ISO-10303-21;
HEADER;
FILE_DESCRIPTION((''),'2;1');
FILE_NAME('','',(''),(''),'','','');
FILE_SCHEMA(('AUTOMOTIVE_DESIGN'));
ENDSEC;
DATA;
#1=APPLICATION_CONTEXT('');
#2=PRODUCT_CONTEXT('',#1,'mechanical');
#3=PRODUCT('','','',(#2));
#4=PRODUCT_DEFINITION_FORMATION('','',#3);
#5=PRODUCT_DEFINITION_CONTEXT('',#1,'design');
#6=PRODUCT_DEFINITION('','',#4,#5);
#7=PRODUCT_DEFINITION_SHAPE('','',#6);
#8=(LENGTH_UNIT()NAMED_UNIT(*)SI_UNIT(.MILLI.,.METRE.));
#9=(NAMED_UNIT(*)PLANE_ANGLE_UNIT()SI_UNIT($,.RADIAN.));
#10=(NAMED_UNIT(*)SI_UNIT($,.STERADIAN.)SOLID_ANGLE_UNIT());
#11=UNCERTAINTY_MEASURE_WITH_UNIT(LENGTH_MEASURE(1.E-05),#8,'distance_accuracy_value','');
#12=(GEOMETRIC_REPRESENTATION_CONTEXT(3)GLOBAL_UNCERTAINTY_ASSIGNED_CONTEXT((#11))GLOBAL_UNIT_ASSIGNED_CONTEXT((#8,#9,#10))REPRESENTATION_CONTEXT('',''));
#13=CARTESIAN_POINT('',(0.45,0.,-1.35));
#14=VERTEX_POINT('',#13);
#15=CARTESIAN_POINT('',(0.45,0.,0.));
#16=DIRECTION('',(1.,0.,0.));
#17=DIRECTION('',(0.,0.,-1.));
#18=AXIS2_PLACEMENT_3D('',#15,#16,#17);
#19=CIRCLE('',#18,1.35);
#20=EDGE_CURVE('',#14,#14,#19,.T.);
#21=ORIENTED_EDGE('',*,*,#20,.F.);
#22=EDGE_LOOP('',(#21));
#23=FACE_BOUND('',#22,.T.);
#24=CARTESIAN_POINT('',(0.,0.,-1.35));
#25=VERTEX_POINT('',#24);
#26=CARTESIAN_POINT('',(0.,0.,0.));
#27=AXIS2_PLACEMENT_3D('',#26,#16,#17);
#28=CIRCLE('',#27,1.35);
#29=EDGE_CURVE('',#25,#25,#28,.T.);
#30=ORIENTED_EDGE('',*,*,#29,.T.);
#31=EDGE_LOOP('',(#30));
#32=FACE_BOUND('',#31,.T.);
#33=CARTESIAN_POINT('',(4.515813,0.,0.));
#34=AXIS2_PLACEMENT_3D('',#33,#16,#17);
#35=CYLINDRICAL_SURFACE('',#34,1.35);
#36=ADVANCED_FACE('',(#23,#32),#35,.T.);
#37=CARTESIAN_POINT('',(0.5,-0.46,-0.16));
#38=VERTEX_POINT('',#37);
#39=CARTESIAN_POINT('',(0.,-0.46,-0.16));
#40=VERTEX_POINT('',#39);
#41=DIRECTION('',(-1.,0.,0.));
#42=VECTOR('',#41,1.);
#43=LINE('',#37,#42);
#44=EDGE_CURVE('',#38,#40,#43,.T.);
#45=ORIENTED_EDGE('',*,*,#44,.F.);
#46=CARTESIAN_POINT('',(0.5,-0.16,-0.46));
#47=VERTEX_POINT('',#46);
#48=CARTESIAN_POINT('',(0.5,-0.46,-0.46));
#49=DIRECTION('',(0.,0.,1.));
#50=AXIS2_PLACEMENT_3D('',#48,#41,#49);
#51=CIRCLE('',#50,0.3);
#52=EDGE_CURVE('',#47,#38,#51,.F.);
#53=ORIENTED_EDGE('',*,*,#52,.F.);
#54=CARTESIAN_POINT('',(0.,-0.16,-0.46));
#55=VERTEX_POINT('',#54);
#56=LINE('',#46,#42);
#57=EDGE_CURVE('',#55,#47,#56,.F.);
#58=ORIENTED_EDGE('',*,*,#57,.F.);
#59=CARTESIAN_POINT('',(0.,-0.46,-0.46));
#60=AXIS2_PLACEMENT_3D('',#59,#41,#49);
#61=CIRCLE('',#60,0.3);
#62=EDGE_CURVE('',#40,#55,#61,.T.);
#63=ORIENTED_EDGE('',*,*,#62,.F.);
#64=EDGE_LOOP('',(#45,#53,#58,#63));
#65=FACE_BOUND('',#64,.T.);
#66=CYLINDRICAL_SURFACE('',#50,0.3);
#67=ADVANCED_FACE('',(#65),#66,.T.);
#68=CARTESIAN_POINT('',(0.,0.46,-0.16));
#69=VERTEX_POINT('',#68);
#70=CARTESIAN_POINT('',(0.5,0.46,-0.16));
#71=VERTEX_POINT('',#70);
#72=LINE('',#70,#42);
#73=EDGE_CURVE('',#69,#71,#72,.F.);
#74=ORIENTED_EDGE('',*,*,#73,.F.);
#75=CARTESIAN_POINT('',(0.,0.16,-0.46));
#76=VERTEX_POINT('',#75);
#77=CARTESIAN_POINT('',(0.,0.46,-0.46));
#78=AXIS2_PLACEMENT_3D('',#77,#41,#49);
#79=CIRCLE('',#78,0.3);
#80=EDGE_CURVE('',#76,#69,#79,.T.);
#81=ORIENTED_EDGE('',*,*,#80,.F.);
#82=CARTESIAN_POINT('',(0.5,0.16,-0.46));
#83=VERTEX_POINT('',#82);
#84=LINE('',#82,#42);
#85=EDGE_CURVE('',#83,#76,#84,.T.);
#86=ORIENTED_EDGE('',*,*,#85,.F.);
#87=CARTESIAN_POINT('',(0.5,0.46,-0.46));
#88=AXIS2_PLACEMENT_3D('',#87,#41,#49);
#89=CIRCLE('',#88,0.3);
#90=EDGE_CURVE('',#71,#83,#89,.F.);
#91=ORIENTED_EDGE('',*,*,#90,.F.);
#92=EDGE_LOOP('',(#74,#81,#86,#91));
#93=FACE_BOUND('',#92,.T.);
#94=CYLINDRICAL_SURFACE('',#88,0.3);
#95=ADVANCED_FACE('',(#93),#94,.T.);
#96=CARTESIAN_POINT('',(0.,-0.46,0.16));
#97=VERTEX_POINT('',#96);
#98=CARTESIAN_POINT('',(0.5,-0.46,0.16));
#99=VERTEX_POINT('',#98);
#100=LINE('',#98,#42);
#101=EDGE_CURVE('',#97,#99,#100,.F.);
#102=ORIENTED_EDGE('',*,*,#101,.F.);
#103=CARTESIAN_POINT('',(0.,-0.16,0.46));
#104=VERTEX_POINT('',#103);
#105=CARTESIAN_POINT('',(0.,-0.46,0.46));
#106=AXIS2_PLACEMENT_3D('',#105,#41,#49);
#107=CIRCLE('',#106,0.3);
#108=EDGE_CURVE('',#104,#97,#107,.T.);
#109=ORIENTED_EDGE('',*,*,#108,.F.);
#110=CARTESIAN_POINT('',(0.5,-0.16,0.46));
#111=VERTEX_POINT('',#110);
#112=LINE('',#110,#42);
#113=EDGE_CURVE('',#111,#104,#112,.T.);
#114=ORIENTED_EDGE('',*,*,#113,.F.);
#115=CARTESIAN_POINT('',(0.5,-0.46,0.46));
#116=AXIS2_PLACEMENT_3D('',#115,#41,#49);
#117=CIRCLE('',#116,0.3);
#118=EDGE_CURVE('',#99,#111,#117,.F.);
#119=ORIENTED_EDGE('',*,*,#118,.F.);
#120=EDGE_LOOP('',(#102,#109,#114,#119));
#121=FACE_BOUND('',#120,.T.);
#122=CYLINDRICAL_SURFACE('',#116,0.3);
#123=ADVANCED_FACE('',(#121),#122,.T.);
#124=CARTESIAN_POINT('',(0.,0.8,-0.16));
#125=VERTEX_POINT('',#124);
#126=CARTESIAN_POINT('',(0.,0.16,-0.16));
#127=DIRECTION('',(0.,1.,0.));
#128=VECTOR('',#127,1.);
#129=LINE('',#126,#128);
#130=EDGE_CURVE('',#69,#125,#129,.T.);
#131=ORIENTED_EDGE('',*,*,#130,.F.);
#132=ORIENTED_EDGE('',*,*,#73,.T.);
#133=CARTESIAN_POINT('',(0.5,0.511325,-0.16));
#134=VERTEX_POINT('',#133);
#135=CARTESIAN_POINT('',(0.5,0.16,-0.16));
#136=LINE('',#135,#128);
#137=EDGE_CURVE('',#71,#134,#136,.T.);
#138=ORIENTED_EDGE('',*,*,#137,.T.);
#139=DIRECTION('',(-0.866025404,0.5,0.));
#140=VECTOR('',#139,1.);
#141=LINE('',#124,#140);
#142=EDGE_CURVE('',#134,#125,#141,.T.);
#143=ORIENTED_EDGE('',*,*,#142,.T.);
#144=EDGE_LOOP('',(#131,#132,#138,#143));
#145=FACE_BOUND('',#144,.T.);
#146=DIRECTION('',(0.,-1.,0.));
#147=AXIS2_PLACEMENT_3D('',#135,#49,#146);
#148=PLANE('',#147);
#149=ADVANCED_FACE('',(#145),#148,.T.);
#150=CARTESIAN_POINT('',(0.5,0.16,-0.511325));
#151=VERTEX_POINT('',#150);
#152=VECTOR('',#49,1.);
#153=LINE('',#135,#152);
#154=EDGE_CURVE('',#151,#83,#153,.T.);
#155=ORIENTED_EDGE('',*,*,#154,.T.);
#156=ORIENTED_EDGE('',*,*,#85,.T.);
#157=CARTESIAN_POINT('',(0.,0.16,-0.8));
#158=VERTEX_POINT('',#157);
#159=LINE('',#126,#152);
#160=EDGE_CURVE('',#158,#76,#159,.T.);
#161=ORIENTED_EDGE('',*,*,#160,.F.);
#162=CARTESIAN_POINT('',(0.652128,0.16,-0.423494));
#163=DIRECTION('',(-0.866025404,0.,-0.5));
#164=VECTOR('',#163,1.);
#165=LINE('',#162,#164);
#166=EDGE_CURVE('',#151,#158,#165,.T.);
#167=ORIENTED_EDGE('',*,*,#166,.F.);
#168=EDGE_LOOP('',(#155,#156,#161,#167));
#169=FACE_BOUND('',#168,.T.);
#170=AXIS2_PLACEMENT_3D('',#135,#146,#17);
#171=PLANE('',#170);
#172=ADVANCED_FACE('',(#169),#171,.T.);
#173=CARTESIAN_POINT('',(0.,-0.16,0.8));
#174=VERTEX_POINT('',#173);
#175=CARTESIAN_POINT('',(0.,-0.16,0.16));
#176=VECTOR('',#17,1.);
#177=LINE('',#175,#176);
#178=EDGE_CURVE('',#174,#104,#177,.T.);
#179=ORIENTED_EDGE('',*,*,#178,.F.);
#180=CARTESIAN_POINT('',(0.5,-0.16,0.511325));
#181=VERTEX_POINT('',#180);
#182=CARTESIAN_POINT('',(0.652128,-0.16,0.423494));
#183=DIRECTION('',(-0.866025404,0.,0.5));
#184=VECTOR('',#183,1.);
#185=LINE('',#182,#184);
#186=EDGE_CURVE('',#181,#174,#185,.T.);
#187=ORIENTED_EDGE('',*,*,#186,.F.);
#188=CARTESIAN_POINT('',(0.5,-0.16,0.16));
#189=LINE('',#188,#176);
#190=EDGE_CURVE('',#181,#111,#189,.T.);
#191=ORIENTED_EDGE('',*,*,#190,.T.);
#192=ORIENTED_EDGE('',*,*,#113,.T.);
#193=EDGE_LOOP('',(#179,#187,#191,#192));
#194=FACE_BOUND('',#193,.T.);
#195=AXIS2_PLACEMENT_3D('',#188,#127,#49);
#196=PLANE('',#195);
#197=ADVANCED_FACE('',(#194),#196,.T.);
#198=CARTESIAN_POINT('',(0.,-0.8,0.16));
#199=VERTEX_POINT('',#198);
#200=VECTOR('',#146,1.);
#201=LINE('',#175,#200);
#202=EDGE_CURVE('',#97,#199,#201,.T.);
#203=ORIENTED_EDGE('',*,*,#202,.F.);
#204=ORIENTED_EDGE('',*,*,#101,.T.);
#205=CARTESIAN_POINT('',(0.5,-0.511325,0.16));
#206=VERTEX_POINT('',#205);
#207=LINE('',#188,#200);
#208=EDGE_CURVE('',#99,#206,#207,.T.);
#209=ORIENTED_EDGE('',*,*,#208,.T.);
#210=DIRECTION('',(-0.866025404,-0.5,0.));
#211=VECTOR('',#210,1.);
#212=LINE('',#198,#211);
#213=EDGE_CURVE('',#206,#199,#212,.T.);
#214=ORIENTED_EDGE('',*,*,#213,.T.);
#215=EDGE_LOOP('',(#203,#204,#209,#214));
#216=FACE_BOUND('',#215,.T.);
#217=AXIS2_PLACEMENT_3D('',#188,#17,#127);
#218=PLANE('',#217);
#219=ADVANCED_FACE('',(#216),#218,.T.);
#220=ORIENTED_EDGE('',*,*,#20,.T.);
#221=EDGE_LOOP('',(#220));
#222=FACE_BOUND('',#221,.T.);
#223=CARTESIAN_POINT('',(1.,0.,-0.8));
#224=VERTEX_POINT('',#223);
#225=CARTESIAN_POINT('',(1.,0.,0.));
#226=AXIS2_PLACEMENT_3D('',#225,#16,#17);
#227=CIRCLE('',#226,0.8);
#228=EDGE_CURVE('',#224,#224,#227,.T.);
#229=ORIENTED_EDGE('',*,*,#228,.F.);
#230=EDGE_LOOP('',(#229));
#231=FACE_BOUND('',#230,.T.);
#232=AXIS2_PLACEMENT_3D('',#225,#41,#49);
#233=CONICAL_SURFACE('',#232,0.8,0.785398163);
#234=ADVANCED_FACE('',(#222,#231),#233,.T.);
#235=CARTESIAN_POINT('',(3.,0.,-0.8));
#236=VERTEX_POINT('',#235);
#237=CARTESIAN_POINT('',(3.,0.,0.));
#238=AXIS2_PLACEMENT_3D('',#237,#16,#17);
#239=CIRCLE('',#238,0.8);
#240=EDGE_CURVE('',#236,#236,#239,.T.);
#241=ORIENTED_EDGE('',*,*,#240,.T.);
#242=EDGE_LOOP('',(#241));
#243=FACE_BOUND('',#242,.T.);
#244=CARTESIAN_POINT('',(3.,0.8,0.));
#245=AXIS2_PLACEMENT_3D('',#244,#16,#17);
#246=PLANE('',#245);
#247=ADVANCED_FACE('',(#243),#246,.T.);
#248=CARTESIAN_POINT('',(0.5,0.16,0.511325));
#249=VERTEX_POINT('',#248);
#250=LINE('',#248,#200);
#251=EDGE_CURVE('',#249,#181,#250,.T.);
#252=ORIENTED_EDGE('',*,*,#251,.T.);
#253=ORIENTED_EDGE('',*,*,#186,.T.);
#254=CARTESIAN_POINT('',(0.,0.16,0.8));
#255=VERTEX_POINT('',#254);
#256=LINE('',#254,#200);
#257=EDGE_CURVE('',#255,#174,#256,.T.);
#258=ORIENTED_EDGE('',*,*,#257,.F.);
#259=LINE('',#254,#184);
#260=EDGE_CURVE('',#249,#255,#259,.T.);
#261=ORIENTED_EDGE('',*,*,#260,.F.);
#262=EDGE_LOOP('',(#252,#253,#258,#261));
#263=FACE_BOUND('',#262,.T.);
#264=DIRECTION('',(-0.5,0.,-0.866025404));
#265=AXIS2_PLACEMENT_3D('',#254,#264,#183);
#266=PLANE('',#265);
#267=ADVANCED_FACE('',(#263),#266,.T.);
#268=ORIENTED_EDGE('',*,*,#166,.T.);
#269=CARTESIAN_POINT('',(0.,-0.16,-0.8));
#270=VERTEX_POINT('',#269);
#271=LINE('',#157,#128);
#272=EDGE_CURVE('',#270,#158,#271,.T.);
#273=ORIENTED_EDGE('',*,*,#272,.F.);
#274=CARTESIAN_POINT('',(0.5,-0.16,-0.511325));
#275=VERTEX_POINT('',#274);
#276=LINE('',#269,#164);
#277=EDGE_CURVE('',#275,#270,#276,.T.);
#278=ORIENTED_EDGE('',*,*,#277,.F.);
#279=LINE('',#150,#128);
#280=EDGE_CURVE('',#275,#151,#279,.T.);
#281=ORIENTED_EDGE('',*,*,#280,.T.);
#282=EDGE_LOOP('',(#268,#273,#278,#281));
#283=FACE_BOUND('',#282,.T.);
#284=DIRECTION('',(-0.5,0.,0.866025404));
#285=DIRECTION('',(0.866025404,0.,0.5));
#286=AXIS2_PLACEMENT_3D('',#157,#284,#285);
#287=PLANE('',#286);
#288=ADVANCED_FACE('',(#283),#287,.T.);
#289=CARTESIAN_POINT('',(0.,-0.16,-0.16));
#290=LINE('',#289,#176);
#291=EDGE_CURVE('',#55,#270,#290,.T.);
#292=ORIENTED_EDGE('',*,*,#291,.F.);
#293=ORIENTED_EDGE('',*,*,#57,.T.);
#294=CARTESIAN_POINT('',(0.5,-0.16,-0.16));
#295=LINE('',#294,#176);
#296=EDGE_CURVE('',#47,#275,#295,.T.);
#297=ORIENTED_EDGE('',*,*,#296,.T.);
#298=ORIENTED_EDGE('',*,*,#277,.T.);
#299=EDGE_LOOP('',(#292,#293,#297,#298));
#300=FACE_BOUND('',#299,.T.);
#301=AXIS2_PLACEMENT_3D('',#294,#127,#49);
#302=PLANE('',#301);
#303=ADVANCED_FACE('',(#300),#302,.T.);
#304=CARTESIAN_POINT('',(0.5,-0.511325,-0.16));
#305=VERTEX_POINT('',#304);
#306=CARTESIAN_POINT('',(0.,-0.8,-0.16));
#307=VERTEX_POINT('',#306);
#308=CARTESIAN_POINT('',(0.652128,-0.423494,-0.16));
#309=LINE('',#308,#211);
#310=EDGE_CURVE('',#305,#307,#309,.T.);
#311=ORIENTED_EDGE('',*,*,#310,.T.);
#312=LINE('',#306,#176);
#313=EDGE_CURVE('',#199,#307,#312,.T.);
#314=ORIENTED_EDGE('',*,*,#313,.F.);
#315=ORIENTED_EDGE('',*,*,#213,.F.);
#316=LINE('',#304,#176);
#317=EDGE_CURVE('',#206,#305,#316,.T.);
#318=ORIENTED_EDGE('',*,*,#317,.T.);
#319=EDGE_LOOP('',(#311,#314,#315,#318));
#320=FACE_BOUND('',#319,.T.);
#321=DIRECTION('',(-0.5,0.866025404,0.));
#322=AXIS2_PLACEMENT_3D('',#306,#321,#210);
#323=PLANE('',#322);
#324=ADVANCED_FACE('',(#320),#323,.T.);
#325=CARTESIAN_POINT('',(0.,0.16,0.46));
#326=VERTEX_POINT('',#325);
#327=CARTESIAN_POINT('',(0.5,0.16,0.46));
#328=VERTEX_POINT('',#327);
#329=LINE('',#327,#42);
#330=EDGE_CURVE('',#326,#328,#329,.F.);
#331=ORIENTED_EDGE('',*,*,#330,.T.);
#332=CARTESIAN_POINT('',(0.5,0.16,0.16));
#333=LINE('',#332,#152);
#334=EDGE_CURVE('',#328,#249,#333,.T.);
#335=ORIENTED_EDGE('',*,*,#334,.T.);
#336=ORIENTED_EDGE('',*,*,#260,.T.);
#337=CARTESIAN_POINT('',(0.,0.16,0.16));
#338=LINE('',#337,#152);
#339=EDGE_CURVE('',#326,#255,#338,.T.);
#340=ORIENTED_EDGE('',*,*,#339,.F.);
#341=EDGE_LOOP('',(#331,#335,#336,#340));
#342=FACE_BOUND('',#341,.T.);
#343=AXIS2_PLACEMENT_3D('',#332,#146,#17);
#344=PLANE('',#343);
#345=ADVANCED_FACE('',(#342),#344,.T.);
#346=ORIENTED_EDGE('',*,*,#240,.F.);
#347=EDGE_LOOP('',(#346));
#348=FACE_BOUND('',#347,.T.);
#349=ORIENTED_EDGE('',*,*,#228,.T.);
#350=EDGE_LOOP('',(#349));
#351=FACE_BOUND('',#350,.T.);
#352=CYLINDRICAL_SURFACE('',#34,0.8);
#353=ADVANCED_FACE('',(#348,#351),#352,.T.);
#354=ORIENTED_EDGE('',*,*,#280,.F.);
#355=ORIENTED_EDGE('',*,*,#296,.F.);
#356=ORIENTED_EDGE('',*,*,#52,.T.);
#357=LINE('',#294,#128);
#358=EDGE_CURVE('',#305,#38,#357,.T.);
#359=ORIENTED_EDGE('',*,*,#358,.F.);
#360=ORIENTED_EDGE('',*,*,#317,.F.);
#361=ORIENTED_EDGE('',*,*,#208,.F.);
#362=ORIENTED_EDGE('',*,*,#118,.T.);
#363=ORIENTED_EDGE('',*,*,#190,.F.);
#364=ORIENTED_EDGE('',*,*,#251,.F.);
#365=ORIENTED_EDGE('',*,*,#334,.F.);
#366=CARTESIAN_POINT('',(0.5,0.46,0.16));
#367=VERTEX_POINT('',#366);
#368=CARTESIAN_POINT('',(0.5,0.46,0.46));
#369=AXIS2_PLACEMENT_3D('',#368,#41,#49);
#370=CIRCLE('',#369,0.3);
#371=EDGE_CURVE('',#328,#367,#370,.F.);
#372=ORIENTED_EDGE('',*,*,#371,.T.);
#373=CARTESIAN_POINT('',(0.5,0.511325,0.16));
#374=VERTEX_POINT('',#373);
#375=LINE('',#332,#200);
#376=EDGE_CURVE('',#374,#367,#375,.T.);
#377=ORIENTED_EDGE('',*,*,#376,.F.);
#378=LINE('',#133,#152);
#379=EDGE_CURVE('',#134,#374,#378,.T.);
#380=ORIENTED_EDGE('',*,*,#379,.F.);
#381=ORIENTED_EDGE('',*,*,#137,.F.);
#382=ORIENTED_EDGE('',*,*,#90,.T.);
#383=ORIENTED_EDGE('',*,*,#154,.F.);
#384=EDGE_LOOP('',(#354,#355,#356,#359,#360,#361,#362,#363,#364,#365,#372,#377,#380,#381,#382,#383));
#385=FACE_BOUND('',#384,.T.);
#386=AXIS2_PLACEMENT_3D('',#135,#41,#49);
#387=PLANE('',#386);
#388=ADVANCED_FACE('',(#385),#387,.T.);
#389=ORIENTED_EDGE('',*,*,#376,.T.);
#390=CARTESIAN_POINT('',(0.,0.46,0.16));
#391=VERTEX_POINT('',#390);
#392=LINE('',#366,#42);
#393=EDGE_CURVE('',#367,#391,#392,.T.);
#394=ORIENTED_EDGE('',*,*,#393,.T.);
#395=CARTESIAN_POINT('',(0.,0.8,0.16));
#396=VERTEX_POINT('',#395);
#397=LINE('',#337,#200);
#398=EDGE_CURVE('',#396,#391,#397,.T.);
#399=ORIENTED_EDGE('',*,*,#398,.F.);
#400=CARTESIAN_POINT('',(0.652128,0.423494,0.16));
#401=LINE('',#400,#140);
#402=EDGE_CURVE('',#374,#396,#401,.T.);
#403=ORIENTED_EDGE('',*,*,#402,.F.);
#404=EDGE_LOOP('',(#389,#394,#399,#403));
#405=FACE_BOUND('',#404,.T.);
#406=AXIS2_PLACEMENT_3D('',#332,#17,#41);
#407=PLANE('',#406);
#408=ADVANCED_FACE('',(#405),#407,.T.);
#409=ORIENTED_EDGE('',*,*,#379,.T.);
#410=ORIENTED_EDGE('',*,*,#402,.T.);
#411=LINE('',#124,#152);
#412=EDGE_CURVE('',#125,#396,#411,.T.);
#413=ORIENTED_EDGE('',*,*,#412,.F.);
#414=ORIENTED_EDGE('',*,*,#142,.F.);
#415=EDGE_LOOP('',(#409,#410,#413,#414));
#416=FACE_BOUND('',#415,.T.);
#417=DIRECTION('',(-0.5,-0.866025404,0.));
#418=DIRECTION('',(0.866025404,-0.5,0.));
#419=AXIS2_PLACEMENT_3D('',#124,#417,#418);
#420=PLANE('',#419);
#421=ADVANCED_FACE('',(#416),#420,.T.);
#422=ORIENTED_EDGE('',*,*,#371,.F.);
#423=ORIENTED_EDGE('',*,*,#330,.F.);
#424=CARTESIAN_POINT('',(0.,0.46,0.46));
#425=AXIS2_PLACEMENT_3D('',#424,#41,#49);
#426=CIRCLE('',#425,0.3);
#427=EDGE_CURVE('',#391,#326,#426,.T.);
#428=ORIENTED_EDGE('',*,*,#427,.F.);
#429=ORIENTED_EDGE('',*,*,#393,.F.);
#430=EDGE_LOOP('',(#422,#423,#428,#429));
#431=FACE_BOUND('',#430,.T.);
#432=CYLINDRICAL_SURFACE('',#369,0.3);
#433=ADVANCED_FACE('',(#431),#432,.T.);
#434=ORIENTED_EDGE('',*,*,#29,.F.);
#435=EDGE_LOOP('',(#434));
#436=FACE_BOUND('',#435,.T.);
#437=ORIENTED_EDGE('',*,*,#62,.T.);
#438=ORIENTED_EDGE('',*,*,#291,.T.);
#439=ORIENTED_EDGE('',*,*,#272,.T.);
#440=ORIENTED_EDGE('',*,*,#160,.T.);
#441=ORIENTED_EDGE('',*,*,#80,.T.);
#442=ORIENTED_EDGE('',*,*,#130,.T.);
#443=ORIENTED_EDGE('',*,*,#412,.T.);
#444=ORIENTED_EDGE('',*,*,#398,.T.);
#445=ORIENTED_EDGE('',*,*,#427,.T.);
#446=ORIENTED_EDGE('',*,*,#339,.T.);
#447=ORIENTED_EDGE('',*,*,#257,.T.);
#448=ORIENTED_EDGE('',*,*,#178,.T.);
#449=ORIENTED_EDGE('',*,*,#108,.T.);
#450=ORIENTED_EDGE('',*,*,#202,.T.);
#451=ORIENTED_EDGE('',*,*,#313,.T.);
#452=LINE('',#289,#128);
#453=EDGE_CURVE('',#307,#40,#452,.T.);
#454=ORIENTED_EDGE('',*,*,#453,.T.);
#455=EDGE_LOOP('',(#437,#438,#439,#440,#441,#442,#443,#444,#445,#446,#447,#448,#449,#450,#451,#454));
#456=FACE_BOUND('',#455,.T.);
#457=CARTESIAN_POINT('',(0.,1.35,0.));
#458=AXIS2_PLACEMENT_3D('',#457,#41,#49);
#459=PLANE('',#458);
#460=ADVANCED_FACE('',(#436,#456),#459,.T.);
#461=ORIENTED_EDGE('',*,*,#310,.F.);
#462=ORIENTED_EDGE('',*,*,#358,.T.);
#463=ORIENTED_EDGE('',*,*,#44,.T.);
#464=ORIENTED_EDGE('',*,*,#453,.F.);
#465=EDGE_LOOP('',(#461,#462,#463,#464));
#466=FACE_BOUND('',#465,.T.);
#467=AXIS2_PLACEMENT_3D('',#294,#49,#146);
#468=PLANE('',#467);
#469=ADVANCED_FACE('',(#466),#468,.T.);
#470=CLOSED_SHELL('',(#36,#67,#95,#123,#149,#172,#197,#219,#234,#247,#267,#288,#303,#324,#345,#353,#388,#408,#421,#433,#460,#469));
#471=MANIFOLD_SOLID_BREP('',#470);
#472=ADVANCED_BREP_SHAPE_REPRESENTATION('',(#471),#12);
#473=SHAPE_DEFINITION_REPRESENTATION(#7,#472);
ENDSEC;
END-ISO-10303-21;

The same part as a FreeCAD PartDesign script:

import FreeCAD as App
import Part
import Sketcher
Q = App.Units.Quantity


def edges_at(feature, points):
    """Names of the edges that pass closest to the given points."""
    edges = feature.Shape.Edges
    near = lambda p: min(range(len(edges)), key=lambda i: edges[i].distToShape(Part.Vertex(*p))[0])
    return sorted({f"Edge{near(p) + 1}" for p in points})


def faces_at(feature, points):
    """Names of the faces that lie closest to the given points."""
    faces = feature.Shape.Faces
    near = lambda p: min(range(len(faces)), key=lambda i: faces[i].distToShape(Part.Vertex(*p))[0])
    return sorted({f"Face{near(p) + 1}" for p in points})


def add_polygon(sketch, points):
    """Adds a closed chain of lines whose ends are joined by coincident constraints."""
    first, n = sketch.GeometryCount, len(points)
    for a, b in zip(points, points[1:] + points[:1]):
        sketch.addGeometry(Part.LineSegment(App.Vector(*a, 0), App.Vector(*b, 0)), False)
    for i in range(n):
        sketch.addConstraint(Sketcher.Constraint("Coincident", first + i, 2, first + (i + 1) % n, 1))

doc = App.newDocument("Part")
body = doc.addObject("PartDesign::Body", "Body")

sketch1 = doc.addObject("Sketcher::SketchObject", "Sketch")
body.addObject(sketch1)
sketch1.AttachmentSupport = (doc.XY_Plane, [""])
sketch1.MapMode = "FlatFace"
add_polygon(sketch1, [(3, 0.8), (1, 0.8), (0.45, 1.35), (0, 1.35), (0, 0), (3, 0)])
sketch1.addConstraint(Sketcher.Constraint("Horizontal", 0))
sketch1.addConstraint(Sketcher.Constraint("Horizontal", 2))
sketch1.addConstraint(Sketcher.Constraint("Vertical", 3))
sketch1.addConstraint(Sketcher.Constraint("Horizontal", 4))
sketch1.addConstraint(Sketcher.Constraint("Vertical", 5))
sketch1.addConstraint(Sketcher.Constraint("Coincident", 3, 2, -1, 1))
sketch1.addConstraint(Sketcher.Constraint("DistanceX", 0, 2, 0, 1, 2.0))
sketch1.addConstraint(Sketcher.Constraint("DistanceX", 4, 1, 4, 2, 3.0))
sketch1.addConstraint(Sketcher.Constraint("Angle", 1, Q("135 deg")))
sketch1.addConstraint(Sketcher.Constraint("DistanceY", 5, 1, 5, 2, 0.8))
sketch1.addConstraint(Sketcher.Constraint("DistanceX", 2, 2, 2, 1, 0.45))
revolution = doc.addObject("PartDesign::Revolution", "Revolution")
body.addObject(revolution)
revolution.Profile = sketch1
revolution.ReferenceAxis = (sketch1, ["H_Axis"])
revolution.Angle = 360

sketch2 = doc.addObject("Sketcher::SketchObject", "Sketch001")
body.addObject(sketch2)
sketch2.AttachmentSupport = (doc.YZ_Plane, [""])
sketch2.MapMode = "FlatFace"
add_polygon(sketch2, [(0.16, -0.16), (0.8, -0.16), (0.8, 0.16), (0.16, 0.16), (0.16, 0.8), (-0.16, 0.8), (-0.16, 0.16), (-0.8, 0.16), (-0.8, -0.16), (-0.16, -0.16), (-0.16, -0.8), (0.16, -0.8)])
sketch2.addConstraint(Sketcher.Constraint("Horizontal", 0))
sketch2.addConstraint(Sketcher.Constraint("Vertical", 1))
sketch2.addConstraint(Sketcher.Constraint("Horizontal", 2))
sketch2.addConstraint(Sketcher.Constraint("Vertical", 3))
sketch2.addConstraint(Sketcher.Constraint("Horizontal", 4))
sketch2.addConstraint(Sketcher.Constraint("Vertical", 5))
sketch2.addConstraint(Sketcher.Constraint("Horizontal", 6))
sketch2.addConstraint(Sketcher.Constraint("Vertical", 7))
sketch2.addConstraint(Sketcher.Constraint("Horizontal", 8))
sketch2.addConstraint(Sketcher.Constraint("Vertical", 9))
sketch2.addConstraint(Sketcher.Constraint("Horizontal", 10))
sketch2.addConstraint(Sketcher.Constraint("Vertical", 11))
sketch2.addConstraint(Sketcher.Constraint("Symmetric", 0, 2, 6, 2, -1, 1))
sketch2.addConstraint(Sketcher.Constraint("Symmetric", 2, 2, 8, 2, -1, 1))
sketch2.addConstraint(Sketcher.Constraint("Symmetric", 4, 2, 10, 2, -1, 1))
sketch2.addConstraint(Sketcher.Constraint("Symmetric", 2, 2, 5, 2, -2))
sketch2.addConstraint(Sketcher.Constraint("Equal", 10, 1))
sketch2.addConstraint(Sketcher.Constraint("Equal", 8, 3))
sketch2.addConstraint(Sketcher.Constraint("DistanceX", 0, 1, 0, 2, 0.64))
sketch2.addConstraint(Sketcher.Constraint("DistanceX", 4, 2, 4, 1, 0.32))
pocket1 = doc.addObject("PartDesign::Pocket", "Pocket")
body.addObject(pocket1)
pocket1.Profile = sketch2
pocket1.Length = 0.5
pocket1.Reversed = True
doc.recompute()

draft = doc.addObject("PartDesign::Draft", "Draft")
body.addObject(draft)
draft.Base = (pocket1, faces_at(pocket1, [
    (0.25, 0.8, 0),
    (0.25, 0, 0.8),
    (0.25, -0.8, 0),
    (0.25, 0, -0.8),
]))
draft.NeutralPlane = (doc.YZ_Plane, [""])
draft.Angle = 30
draft.Reversed = True
doc.recompute()

fillet = doc.addObject("PartDesign::Fillet", "Fillet")
body.addObject(fillet)
fillet.Base = (draft, edges_at(draft, [
    (0.25, 0.16, 0.16),
    (0.25, -0.16, 0.16),
    (0.25, -0.16, -0.16),
    (0.25, 0.16, -0.16),
]))
fillet.Radius = 0.3

doc.recompute()
